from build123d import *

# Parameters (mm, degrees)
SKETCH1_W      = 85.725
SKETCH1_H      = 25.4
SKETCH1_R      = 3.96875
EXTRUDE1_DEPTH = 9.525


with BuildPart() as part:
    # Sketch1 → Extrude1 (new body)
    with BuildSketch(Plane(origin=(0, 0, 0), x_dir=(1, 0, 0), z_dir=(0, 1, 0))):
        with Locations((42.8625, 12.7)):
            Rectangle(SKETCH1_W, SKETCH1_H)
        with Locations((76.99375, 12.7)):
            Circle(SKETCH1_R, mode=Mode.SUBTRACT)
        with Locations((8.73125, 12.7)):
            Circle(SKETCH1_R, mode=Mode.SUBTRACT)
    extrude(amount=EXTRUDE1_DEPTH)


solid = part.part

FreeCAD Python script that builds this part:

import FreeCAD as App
import Part
import Sketcher
Q = App.Units.Quantity

doc = App.newDocument("Part")
body = doc.addObject("PartDesign::Body", "Body")

sketch1 = body.newObject("Sketcher::SketchObject", "Sketch")
sketch1.AttachmentSupport = (doc.getObject("XZ_Plane"), [""])
sketch1.MapMode = "FlatFace"
sketch1.addGeometry([
    Part.LineSegment(App.Vector(0, -25.4, 0), App.Vector(0, 0, 0)),
    Part.LineSegment(App.Vector(0, 0, 0), App.Vector(85.7, 0, 0)),
    Part.LineSegment(App.Vector(85.7, 0, 0), App.Vector(85.7, -25.4, 0)),
    Part.LineSegment(App.Vector(85.7, -25.4, 0), App.Vector(0, -25.4, 0)),
    Part.Circle(App.Vector(8.7, -12.7, 0), App.Vector(0, 0, 1), 4),
    Part.Circle(App.Vector(77, -12.7, 0), App.Vector(0, 0, 1), 4),
], False)
sketch1.addConstraint([
    Sketcher.Constraint("Coincident", 0, 2, 1, 1),
    Sketcher.Constraint("Coincident", 1, 2, 2, 1),
    Sketcher.Constraint("Coincident", 2, 2, 3, 1),
    Sketcher.Constraint("Coincident", 3, 2, 0, 1),
    Sketcher.Constraint("Vertical", 0),
    Sketcher.Constraint("Horizontal", 1),
    Sketcher.Constraint("Vertical", 2),
    Sketcher.Constraint("Horizontal", 3),
    Sketcher.Constraint("Coincident", 0, 2, -1, 1),
    Sketcher.Constraint("Equal", 4, 5),
    Sketcher.Constraint("Horizontal", 4, 3, 5, 3),
    Sketcher.Constraint("DistanceY", 0, 1, 0, 2, Q("1 in")),
    Sketcher.Constraint("Diameter", 4, Q("0.3125 in")),
    Sketcher.Constraint("DistanceY", 4, 3, -1, 1, Q("0.5 in")),
    Sketcher.Constraint("DistanceX", 1, 1, 1, 2, Q("3.375 in")),
    Sketcher.Constraint("DistanceX", -1, 1, 4, 3, Q("0.34375 in")),
    Sketcher.Constraint("DistanceX", -1, 1, 5, 3, Q("3.03125 in")),
])
pad1 = body.newObject("PartDesign::Pad", "Pad")
pad1.Profile = sketch1
pad1.Length = Q("0.375 in")
pad1.Reversed = True

doc.recompute()
